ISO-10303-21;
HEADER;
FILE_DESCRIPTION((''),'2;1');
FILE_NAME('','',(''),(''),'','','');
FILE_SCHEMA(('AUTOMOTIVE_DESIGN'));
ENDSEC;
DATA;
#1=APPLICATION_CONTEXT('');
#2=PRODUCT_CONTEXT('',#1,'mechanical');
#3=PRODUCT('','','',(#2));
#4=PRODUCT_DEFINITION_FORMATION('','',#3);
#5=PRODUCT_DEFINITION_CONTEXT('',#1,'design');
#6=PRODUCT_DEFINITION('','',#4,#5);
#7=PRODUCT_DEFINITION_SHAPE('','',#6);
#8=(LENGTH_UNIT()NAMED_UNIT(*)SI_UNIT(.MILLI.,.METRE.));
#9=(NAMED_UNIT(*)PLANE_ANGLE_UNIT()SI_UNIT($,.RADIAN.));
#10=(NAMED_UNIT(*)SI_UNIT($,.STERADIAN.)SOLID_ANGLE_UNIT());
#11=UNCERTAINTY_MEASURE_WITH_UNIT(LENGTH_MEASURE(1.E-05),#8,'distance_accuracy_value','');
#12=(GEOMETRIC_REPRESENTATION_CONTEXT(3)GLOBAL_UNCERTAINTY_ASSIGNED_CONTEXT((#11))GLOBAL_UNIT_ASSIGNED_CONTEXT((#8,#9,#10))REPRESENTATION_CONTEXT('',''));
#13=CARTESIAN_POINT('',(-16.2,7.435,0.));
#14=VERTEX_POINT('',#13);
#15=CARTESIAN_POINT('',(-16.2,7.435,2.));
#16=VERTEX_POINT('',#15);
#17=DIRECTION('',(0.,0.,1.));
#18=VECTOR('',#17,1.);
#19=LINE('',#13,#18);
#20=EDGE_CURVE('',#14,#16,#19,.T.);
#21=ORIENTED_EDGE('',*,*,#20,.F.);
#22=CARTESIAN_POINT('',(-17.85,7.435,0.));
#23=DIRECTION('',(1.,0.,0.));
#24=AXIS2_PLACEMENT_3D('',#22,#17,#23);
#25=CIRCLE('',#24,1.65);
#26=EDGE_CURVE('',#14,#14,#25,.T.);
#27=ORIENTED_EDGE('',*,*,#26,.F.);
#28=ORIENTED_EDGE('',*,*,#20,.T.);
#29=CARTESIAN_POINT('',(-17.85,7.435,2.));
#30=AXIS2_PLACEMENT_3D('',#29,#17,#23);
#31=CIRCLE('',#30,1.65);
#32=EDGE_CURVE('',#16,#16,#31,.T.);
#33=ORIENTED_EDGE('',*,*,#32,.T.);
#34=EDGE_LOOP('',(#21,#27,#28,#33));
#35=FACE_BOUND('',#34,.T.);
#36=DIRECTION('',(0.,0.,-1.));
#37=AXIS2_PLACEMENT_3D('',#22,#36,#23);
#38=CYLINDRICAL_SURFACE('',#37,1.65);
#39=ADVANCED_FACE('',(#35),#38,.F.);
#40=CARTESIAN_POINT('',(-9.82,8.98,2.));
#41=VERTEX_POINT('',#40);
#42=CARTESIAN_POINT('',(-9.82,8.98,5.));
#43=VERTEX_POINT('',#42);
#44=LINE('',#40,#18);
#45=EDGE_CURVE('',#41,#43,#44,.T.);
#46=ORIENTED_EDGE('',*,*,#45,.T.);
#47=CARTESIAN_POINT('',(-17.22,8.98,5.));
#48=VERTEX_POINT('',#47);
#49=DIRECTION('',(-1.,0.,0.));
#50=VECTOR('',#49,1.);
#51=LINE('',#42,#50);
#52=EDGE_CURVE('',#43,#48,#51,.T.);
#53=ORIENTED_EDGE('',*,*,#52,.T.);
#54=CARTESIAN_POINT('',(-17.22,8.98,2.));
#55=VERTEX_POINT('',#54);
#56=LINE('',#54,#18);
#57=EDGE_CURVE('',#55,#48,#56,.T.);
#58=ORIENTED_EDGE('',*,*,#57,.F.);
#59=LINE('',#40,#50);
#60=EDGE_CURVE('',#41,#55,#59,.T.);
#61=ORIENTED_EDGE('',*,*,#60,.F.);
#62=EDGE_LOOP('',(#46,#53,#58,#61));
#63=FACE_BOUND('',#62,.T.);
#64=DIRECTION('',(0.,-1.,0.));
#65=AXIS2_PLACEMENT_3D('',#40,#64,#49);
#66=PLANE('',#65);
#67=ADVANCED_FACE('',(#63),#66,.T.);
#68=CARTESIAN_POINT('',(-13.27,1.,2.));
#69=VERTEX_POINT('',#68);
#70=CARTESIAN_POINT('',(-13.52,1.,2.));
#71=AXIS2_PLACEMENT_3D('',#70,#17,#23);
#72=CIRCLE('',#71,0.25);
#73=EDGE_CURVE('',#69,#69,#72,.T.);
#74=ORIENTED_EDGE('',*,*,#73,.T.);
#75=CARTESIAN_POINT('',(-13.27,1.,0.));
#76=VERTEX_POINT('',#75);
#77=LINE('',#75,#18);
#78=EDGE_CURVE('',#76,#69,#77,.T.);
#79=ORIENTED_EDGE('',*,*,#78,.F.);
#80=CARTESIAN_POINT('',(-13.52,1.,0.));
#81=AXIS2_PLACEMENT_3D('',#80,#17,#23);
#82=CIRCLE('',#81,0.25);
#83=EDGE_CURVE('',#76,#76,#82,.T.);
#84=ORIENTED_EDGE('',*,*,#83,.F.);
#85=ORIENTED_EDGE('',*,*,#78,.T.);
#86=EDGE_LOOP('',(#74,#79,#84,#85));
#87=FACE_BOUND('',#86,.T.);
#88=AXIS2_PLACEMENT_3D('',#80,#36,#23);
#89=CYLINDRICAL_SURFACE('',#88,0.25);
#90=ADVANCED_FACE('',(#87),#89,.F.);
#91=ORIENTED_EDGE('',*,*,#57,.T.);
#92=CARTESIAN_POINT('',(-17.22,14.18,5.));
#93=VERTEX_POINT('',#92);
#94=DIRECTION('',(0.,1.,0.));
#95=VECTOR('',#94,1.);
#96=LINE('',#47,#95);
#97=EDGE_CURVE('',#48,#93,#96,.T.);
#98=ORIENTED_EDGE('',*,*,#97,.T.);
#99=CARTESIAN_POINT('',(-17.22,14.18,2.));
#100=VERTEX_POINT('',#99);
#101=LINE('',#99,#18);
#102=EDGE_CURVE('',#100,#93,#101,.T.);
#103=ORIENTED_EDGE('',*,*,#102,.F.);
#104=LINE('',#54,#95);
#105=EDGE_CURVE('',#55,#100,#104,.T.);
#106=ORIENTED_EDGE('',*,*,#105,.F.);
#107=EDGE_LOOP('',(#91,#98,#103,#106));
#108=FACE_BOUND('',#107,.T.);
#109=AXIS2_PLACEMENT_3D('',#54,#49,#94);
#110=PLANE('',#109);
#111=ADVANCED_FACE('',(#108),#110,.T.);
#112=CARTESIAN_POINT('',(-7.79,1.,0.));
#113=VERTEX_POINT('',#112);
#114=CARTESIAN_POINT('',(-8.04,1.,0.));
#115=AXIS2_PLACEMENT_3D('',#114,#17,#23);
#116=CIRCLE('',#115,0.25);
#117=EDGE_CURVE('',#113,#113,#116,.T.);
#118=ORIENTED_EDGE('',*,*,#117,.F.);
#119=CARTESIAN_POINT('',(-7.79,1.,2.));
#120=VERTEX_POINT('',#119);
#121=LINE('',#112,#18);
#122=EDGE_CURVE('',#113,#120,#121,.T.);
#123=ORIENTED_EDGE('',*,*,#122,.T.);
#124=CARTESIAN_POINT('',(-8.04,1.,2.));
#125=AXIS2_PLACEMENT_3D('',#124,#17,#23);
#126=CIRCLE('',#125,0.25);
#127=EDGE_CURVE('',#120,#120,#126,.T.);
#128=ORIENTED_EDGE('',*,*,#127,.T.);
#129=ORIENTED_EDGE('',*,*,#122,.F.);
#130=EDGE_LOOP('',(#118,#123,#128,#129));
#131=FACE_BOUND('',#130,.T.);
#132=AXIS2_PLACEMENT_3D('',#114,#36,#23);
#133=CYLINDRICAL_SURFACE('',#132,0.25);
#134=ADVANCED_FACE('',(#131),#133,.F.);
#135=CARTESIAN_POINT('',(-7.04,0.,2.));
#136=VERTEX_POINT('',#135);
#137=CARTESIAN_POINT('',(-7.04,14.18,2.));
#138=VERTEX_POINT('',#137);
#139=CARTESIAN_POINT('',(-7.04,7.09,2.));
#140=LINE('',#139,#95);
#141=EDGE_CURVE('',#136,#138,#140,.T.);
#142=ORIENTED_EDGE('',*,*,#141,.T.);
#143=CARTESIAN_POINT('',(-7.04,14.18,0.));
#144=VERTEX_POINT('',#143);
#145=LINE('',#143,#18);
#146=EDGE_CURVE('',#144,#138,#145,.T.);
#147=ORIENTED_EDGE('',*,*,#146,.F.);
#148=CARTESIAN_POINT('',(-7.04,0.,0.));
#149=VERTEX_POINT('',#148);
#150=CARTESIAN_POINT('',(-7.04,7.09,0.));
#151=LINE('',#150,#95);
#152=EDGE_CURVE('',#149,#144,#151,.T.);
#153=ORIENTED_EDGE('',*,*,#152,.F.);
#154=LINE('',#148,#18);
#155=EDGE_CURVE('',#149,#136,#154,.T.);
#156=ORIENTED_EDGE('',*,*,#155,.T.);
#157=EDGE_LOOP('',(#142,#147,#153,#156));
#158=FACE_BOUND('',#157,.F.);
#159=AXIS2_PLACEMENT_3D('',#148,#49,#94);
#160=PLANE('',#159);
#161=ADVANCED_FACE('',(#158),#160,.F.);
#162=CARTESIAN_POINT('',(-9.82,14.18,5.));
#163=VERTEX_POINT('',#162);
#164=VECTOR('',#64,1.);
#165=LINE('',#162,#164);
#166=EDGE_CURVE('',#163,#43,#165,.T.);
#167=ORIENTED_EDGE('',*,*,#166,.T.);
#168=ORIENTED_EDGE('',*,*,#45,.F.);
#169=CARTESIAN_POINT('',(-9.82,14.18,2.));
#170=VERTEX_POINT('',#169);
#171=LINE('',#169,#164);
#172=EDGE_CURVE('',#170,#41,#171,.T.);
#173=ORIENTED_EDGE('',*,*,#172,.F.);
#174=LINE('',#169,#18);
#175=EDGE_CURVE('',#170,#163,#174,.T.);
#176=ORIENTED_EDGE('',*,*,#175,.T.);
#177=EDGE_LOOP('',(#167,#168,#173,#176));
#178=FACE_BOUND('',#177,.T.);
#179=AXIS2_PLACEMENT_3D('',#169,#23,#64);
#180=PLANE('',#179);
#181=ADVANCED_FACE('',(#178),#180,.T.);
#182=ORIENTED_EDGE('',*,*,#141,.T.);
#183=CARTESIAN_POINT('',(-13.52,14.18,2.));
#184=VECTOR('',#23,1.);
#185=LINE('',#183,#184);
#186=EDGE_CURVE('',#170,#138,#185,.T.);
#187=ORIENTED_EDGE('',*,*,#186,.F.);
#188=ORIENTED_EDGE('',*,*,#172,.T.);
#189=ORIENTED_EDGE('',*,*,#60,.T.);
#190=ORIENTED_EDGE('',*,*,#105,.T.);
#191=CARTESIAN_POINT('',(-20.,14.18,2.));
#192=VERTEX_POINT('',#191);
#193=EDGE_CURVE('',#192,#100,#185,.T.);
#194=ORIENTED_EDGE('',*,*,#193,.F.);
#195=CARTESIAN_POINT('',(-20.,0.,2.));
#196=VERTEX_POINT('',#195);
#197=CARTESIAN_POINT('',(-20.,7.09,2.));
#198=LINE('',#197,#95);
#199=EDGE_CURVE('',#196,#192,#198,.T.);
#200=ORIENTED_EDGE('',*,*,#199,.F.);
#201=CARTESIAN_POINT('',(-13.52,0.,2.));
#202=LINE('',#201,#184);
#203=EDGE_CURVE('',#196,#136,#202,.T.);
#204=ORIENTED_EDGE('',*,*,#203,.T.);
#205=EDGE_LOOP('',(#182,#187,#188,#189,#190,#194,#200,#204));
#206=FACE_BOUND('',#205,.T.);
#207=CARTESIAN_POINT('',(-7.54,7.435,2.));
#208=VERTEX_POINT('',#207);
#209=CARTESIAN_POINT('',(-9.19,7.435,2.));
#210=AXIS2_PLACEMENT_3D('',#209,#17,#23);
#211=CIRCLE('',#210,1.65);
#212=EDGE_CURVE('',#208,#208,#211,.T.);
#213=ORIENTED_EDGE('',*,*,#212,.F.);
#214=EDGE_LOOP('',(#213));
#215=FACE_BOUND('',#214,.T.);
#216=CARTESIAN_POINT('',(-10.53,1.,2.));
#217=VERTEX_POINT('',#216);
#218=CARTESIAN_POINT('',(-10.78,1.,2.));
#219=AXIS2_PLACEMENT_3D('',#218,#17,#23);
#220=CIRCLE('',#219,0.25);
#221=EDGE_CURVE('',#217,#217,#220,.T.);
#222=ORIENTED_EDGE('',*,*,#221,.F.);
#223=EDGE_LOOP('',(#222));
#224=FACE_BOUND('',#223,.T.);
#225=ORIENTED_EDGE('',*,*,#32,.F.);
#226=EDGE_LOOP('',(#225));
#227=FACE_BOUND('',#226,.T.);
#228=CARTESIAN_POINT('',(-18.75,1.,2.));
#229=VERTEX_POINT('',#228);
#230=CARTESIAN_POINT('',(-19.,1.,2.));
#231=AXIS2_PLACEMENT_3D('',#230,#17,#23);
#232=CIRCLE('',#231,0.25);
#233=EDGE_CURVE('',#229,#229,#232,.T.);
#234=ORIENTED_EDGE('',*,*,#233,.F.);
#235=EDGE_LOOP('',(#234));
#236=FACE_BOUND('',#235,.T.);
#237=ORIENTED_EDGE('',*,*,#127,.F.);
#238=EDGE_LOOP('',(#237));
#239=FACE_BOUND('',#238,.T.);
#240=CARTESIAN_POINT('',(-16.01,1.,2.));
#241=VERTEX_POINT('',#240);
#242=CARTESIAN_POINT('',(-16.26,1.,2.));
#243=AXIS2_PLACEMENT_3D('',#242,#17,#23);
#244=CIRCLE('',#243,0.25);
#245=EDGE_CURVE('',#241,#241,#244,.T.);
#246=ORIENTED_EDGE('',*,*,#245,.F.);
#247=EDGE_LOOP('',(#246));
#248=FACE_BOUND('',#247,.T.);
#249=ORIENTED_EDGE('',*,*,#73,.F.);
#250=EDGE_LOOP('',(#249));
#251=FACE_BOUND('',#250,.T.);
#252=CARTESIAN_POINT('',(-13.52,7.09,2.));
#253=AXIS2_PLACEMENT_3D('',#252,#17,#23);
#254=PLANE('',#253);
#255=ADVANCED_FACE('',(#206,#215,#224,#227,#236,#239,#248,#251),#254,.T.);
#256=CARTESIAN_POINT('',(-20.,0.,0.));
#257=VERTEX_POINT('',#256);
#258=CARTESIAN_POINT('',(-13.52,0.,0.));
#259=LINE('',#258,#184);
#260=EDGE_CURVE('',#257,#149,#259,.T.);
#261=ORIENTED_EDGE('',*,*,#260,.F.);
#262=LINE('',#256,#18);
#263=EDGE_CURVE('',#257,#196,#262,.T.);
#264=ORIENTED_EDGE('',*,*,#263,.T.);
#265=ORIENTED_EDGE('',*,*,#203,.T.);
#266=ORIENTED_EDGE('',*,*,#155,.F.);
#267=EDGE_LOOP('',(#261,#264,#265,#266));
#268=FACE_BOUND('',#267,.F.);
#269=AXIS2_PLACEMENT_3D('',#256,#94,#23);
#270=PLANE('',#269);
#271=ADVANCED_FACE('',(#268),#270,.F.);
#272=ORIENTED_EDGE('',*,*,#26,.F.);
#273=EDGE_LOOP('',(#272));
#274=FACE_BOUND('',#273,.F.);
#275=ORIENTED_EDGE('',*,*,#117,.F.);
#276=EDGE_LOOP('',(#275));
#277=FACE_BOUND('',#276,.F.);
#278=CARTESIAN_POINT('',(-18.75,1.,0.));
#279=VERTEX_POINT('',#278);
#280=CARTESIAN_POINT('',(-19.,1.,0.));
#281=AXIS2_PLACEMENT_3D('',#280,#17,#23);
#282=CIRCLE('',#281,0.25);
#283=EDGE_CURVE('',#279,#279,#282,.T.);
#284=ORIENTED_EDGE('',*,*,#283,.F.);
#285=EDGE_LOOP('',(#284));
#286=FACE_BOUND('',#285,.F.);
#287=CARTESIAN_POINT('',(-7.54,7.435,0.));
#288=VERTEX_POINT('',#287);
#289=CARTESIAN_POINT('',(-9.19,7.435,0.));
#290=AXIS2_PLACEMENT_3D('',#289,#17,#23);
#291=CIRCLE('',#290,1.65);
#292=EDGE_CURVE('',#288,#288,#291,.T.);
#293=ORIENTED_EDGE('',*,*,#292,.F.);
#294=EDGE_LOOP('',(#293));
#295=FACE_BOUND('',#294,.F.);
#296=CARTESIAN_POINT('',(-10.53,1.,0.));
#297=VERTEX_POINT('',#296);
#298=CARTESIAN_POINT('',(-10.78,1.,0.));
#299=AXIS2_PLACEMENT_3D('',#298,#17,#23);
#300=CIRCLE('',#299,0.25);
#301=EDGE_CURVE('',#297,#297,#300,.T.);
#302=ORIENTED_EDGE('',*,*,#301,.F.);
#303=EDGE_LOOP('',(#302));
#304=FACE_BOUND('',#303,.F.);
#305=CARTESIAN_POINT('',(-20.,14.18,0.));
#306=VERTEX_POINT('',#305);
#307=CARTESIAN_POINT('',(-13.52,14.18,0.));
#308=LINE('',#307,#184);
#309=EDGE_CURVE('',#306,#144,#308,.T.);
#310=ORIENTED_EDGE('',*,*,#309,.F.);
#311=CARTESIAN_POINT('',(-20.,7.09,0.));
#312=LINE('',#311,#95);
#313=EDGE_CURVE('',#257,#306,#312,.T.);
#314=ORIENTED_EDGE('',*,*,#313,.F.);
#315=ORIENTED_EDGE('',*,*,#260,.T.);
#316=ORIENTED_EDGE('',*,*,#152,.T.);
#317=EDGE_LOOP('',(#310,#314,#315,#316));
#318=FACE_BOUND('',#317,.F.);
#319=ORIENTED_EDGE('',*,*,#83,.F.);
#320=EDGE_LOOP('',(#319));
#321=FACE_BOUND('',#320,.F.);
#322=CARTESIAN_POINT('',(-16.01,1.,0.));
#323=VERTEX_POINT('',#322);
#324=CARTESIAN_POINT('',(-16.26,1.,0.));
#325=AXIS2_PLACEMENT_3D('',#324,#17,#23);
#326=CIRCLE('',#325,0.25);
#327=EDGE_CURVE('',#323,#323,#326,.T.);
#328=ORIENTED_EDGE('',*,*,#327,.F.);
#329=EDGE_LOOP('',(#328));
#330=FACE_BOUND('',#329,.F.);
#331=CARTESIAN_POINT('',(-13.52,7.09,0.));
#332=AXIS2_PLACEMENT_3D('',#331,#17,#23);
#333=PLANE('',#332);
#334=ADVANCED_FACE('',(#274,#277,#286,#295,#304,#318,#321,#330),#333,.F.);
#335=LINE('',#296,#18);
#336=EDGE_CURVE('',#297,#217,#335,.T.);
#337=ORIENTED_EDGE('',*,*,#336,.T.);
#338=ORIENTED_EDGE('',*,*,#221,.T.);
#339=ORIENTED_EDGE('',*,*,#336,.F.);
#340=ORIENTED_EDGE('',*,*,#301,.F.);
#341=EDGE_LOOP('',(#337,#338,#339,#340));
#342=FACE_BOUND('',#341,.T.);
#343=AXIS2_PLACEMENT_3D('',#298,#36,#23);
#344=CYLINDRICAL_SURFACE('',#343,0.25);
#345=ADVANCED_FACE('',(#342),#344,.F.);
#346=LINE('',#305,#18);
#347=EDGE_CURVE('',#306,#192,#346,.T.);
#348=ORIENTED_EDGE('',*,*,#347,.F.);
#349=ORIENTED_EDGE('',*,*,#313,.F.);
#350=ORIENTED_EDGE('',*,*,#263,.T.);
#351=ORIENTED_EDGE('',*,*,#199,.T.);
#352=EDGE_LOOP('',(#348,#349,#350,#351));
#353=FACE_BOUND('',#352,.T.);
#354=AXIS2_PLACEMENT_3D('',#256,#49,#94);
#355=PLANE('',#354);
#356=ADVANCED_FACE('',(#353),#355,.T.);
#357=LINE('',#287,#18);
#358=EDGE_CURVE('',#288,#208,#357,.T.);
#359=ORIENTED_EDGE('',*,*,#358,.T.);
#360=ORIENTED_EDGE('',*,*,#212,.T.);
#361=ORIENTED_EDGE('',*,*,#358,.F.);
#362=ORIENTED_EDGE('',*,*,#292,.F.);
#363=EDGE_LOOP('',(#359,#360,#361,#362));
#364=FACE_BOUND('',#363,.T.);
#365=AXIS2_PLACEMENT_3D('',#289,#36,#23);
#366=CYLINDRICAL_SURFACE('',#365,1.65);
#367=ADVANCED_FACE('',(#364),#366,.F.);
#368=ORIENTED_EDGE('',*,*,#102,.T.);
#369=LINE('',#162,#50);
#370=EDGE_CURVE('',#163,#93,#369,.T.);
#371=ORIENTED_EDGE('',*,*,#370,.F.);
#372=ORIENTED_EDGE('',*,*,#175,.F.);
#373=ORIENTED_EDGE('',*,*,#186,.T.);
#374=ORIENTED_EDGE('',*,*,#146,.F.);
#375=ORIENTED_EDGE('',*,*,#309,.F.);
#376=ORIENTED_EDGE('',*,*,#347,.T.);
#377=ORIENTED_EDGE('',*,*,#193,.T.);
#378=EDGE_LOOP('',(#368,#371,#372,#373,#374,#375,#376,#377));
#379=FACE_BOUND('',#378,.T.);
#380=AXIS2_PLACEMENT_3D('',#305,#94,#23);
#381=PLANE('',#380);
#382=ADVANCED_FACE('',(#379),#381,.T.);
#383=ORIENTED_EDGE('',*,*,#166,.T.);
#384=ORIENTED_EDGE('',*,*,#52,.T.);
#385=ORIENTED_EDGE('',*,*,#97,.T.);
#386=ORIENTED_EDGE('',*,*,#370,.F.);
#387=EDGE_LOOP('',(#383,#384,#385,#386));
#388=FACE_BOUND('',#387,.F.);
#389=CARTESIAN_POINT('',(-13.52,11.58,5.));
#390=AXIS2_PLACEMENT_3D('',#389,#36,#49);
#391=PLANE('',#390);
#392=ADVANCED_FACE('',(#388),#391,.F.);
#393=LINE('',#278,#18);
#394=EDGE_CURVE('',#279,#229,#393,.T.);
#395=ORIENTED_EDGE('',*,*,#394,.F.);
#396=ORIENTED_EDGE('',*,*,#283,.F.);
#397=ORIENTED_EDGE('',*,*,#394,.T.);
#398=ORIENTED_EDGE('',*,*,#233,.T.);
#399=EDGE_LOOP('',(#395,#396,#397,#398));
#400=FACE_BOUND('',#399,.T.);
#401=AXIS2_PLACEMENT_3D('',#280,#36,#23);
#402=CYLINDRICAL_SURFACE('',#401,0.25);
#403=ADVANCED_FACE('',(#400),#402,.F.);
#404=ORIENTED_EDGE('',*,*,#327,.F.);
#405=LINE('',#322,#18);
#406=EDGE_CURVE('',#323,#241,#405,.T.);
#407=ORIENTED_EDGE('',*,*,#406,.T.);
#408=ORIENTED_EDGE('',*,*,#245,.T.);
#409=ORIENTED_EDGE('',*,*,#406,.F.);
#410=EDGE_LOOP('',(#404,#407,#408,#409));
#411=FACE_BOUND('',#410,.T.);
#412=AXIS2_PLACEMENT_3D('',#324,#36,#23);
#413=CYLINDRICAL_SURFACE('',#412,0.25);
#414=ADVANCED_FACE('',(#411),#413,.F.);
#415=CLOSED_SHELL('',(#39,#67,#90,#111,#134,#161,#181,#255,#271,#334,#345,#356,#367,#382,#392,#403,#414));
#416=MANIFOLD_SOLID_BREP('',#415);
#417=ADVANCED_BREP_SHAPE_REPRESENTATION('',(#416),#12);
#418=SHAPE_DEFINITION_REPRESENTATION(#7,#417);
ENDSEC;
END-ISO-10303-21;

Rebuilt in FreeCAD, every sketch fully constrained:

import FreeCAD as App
import Part
import Sketcher

V = App.Vector


def add_polygon(sketch, points):
    """Adds a closed chain of lines whose ends are joined by coincident constraints."""
    first, n = sketch.GeometryCount, len(points)
    for a, b in zip(points, points[1:] + points[:1]):
        sketch.addGeometry(Part.LineSegment(App.Vector(*a, 0), App.Vector(*b, 0)), False)
    for i in range(n):
        sketch.addConstraint(Sketcher.Constraint("Coincident", first + i, 2, first + (i + 1) % n, 1))

doc = App.newDocument("Part")
params = doc.addObject("Spreadsheet::Sheet", "Params")
for row, (alias, value) in enumerate([
    ("sketch1_width", "7.4 mm"),
    ("sketch1_height", "5.2 mm"),
    ("pad1_length", "3 mm"),
    ("sketch2_diameter", "0.5 mm"),
    ("sketch2_diameter2", "3.3 mm"),
    ("sketch2_width", "12.96 mm"),
    ("sketch2_height", "14.18 mm"),
    ("pad2_length", "2 mm"),
], start=1):
    params.set(f"A{row}", alias)
    params.set(f"B{row}", "=" + value)
    params.setAlias(f"B{row}", alias)

body = doc.addObject("PartDesign::Body", "Body")

sketch1 = doc.addObject("Sketcher::SketchObject", "Sketch")
body.addObject(sketch1)
sketch1.AttachmentSupport = (doc.XY_Plane, [""])
sketch1.MapMode = "FlatFace"
add_polygon(sketch1, [(10, 9), (10, 14), (3, 14), (3, 9)])
sketch1.addConstraint([
    Sketcher.Constraint("Vertical", 0),
    Sketcher.Constraint("Horizontal", 1),
    Sketcher.Constraint("Vertical", 2),
    Sketcher.Constraint("Horizontal", 3),
    Sketcher.Constraint("DistanceX", 1, 2, 1, 1, 7.4),
    Sketcher.Constraint("DistanceY", 0, 1, 0, 2, 5.2),
    Sketcher.Constraint("DistanceX", -1, 1, 0, 2, 10.18),
    Sketcher.Constraint("DistanceY", -1, 1, 0, 2, 14.18),
])
sketch1.setExpression("Constraints[8]", "Params.sketch1_width")
sketch1.setExpression("Constraints[9]", "Params.sketch1_height")
pad1 = doc.addObject("PartDesign::Pad", "Pad")
body.addObject(pad1)
pad1.Profile = sketch1
pad1.setExpression("Length", "Params.pad1_length")
body2 = doc.addObject("PartDesign::Body", "Body001")
doc.recompute()

body.Placement = App.Placement(V(0, 0, 2), App.Rotation(V(0, 0, 1), 0))
boolean = doc.addObject("PartDesign::Boolean", "Boolean")
body2.addObject(boolean)
boolean.Type = "Fuse"
boolean.addObjects([body])
body3 = doc.addObject("PartDesign::Body", "Body002")

sketch2 = doc.addObject("Sketcher::SketchObject", "Sketch001")
body3.addObject(sketch2)
sketch2.AttachmentSupport = (doc.getObject("XY_Plane002"), [""])
sketch2.MapMode = "FlatFace"
add_polygon(sketch2, [(0, 14.18), (0, 0), (12.96, 0), (12.96, 14.18)])
sketch2.addGeometry(Part.Circle(V(1, 1, 0), V(0, 0, 1), 0.25), False)
sketch2.addGeometry(Part.Circle(V(3.74, 1, 0), V(0, 0, 1), 0.25), False)
sketch2.addGeometry(Part.Circle(V(6.48, 1, 0), V(0, 0, 1), 0.25), False)
sketch2.addGeometry(Part.Circle(V(9.22, 1, 0), V(0, 0, 1), 0.25), False)
sketch2.addGeometry(Part.Circle(V(11.96, 1, 0), V(0, 0, 1), 0.25), False)
sketch2.addGeometry(Part.Circle(V(2.15, 7.43, 0), V(0, 0, 1), 1.65), False)
sketch2.addGeometry(Part.Circle(V(10.81, 7.43, 0), V(0, 0, 1), 1.65), False)
sketch2.addConstraint([
    Sketcher.Constraint("Vertical", 0),
    Sketcher.Constraint("Horizontal", 1),
    Sketcher.Constraint("Vertical", 2),
    Sketcher.Constraint("Horizontal", 3),
    Sketcher.Constraint("Coincident", 0, 2, -1, 1),
    Sketcher.Constraint("Equal", 4, 5),
    Sketcher.Constraint("Equal", 5, 6),
    Sketcher.Constraint("Equal", 6, 7),
    Sketcher.Constraint("Equal", 7, 8),
    Sketcher.Constraint("Equal", 9, 10),
    Sketcher.Constraint("Horizontal", 4, 3, 5, 3),
    Sketcher.Constraint("Horizontal", 5, 3, 6, 3),
    Sketcher.Constraint("Horizontal", 6, 3, 7, 3),
    Sketcher.Constraint("Horizontal", 7, 3, 8, 3),
    Sketcher.Constraint("Horizontal", 9, 3, 10, 3),
    Sketcher.Constraint("Diameter", 4, 0.5),
    Sketcher.Constraint("Diameter", 9, 3.3),
    Sketcher.Constraint("DistanceX", -1, 1, 4, 3, 1.0),
    Sketcher.Constraint("DistanceY", -1, 1, 4, 3, 1.0),
    Sketcher.Constraint("DistanceX", 8, 3, 1, 2, 1.0),
    Sketcher.Constraint("DistanceX", 1, 1, 1, 2, 12.96),
    Sketcher.Constraint("DistanceY", 0, 2, 0, 1, 14.18),
    Sketcher.Constraint("DistanceX", -1, 1, 5, 3, 3.74),
    Sketcher.Constraint("DistanceX", -1, 1, 6, 3, 6.48),
    Sketcher.Constraint("DistanceX", -1, 1, 7, 3, 9.22),
    Sketcher.Constraint("DistanceX", -1, 1, 9, 3, 2.15),
    Sketcher.Constraint("DistanceX", -1, 1, 10, 3, 10.81),
    Sketcher.Constraint("DistanceY", -1, 1, 9, 3, 7.435),
])
sketch2.setExpression("Constraints[19]", "Params.sketch2_diameter")
sketch2.setExpression("Constraints[20]", "Params.sketch2_diameter2")
sketch2.setExpression("Constraints[24]", "Params.sketch2_width")
sketch2.setExpression("Constraints[25]", "Params.sketch2_height")
pad2 = doc.addObject("PartDesign::Pad", "Pad001")
body3.addObject(pad2)
pad2.Profile = sketch2
pad2.setExpression("Length", "Params.pad2_length")
doc.recompute()

boolean2 = doc.addObject("PartDesign::Boolean", "Boolean001")
body3.addObject(boolean2)
boolean2.Type = "Fuse"
boolean2.addObjects([body2])
body4 = doc.addObject("PartDesign::Body", "Body003")
doc.recompute()

body3.Placement = App.Placement(V(-20, 0, 0), App.Rotation(V(0, 0, 1), 0))
boolean3 = doc.addObject("PartDesign::Boolean", "Boolean002")
body4.addObject(boolean3)
boolean3.Type = "Fuse"
boolean3.addObjects([body3])

doc.recompute()
